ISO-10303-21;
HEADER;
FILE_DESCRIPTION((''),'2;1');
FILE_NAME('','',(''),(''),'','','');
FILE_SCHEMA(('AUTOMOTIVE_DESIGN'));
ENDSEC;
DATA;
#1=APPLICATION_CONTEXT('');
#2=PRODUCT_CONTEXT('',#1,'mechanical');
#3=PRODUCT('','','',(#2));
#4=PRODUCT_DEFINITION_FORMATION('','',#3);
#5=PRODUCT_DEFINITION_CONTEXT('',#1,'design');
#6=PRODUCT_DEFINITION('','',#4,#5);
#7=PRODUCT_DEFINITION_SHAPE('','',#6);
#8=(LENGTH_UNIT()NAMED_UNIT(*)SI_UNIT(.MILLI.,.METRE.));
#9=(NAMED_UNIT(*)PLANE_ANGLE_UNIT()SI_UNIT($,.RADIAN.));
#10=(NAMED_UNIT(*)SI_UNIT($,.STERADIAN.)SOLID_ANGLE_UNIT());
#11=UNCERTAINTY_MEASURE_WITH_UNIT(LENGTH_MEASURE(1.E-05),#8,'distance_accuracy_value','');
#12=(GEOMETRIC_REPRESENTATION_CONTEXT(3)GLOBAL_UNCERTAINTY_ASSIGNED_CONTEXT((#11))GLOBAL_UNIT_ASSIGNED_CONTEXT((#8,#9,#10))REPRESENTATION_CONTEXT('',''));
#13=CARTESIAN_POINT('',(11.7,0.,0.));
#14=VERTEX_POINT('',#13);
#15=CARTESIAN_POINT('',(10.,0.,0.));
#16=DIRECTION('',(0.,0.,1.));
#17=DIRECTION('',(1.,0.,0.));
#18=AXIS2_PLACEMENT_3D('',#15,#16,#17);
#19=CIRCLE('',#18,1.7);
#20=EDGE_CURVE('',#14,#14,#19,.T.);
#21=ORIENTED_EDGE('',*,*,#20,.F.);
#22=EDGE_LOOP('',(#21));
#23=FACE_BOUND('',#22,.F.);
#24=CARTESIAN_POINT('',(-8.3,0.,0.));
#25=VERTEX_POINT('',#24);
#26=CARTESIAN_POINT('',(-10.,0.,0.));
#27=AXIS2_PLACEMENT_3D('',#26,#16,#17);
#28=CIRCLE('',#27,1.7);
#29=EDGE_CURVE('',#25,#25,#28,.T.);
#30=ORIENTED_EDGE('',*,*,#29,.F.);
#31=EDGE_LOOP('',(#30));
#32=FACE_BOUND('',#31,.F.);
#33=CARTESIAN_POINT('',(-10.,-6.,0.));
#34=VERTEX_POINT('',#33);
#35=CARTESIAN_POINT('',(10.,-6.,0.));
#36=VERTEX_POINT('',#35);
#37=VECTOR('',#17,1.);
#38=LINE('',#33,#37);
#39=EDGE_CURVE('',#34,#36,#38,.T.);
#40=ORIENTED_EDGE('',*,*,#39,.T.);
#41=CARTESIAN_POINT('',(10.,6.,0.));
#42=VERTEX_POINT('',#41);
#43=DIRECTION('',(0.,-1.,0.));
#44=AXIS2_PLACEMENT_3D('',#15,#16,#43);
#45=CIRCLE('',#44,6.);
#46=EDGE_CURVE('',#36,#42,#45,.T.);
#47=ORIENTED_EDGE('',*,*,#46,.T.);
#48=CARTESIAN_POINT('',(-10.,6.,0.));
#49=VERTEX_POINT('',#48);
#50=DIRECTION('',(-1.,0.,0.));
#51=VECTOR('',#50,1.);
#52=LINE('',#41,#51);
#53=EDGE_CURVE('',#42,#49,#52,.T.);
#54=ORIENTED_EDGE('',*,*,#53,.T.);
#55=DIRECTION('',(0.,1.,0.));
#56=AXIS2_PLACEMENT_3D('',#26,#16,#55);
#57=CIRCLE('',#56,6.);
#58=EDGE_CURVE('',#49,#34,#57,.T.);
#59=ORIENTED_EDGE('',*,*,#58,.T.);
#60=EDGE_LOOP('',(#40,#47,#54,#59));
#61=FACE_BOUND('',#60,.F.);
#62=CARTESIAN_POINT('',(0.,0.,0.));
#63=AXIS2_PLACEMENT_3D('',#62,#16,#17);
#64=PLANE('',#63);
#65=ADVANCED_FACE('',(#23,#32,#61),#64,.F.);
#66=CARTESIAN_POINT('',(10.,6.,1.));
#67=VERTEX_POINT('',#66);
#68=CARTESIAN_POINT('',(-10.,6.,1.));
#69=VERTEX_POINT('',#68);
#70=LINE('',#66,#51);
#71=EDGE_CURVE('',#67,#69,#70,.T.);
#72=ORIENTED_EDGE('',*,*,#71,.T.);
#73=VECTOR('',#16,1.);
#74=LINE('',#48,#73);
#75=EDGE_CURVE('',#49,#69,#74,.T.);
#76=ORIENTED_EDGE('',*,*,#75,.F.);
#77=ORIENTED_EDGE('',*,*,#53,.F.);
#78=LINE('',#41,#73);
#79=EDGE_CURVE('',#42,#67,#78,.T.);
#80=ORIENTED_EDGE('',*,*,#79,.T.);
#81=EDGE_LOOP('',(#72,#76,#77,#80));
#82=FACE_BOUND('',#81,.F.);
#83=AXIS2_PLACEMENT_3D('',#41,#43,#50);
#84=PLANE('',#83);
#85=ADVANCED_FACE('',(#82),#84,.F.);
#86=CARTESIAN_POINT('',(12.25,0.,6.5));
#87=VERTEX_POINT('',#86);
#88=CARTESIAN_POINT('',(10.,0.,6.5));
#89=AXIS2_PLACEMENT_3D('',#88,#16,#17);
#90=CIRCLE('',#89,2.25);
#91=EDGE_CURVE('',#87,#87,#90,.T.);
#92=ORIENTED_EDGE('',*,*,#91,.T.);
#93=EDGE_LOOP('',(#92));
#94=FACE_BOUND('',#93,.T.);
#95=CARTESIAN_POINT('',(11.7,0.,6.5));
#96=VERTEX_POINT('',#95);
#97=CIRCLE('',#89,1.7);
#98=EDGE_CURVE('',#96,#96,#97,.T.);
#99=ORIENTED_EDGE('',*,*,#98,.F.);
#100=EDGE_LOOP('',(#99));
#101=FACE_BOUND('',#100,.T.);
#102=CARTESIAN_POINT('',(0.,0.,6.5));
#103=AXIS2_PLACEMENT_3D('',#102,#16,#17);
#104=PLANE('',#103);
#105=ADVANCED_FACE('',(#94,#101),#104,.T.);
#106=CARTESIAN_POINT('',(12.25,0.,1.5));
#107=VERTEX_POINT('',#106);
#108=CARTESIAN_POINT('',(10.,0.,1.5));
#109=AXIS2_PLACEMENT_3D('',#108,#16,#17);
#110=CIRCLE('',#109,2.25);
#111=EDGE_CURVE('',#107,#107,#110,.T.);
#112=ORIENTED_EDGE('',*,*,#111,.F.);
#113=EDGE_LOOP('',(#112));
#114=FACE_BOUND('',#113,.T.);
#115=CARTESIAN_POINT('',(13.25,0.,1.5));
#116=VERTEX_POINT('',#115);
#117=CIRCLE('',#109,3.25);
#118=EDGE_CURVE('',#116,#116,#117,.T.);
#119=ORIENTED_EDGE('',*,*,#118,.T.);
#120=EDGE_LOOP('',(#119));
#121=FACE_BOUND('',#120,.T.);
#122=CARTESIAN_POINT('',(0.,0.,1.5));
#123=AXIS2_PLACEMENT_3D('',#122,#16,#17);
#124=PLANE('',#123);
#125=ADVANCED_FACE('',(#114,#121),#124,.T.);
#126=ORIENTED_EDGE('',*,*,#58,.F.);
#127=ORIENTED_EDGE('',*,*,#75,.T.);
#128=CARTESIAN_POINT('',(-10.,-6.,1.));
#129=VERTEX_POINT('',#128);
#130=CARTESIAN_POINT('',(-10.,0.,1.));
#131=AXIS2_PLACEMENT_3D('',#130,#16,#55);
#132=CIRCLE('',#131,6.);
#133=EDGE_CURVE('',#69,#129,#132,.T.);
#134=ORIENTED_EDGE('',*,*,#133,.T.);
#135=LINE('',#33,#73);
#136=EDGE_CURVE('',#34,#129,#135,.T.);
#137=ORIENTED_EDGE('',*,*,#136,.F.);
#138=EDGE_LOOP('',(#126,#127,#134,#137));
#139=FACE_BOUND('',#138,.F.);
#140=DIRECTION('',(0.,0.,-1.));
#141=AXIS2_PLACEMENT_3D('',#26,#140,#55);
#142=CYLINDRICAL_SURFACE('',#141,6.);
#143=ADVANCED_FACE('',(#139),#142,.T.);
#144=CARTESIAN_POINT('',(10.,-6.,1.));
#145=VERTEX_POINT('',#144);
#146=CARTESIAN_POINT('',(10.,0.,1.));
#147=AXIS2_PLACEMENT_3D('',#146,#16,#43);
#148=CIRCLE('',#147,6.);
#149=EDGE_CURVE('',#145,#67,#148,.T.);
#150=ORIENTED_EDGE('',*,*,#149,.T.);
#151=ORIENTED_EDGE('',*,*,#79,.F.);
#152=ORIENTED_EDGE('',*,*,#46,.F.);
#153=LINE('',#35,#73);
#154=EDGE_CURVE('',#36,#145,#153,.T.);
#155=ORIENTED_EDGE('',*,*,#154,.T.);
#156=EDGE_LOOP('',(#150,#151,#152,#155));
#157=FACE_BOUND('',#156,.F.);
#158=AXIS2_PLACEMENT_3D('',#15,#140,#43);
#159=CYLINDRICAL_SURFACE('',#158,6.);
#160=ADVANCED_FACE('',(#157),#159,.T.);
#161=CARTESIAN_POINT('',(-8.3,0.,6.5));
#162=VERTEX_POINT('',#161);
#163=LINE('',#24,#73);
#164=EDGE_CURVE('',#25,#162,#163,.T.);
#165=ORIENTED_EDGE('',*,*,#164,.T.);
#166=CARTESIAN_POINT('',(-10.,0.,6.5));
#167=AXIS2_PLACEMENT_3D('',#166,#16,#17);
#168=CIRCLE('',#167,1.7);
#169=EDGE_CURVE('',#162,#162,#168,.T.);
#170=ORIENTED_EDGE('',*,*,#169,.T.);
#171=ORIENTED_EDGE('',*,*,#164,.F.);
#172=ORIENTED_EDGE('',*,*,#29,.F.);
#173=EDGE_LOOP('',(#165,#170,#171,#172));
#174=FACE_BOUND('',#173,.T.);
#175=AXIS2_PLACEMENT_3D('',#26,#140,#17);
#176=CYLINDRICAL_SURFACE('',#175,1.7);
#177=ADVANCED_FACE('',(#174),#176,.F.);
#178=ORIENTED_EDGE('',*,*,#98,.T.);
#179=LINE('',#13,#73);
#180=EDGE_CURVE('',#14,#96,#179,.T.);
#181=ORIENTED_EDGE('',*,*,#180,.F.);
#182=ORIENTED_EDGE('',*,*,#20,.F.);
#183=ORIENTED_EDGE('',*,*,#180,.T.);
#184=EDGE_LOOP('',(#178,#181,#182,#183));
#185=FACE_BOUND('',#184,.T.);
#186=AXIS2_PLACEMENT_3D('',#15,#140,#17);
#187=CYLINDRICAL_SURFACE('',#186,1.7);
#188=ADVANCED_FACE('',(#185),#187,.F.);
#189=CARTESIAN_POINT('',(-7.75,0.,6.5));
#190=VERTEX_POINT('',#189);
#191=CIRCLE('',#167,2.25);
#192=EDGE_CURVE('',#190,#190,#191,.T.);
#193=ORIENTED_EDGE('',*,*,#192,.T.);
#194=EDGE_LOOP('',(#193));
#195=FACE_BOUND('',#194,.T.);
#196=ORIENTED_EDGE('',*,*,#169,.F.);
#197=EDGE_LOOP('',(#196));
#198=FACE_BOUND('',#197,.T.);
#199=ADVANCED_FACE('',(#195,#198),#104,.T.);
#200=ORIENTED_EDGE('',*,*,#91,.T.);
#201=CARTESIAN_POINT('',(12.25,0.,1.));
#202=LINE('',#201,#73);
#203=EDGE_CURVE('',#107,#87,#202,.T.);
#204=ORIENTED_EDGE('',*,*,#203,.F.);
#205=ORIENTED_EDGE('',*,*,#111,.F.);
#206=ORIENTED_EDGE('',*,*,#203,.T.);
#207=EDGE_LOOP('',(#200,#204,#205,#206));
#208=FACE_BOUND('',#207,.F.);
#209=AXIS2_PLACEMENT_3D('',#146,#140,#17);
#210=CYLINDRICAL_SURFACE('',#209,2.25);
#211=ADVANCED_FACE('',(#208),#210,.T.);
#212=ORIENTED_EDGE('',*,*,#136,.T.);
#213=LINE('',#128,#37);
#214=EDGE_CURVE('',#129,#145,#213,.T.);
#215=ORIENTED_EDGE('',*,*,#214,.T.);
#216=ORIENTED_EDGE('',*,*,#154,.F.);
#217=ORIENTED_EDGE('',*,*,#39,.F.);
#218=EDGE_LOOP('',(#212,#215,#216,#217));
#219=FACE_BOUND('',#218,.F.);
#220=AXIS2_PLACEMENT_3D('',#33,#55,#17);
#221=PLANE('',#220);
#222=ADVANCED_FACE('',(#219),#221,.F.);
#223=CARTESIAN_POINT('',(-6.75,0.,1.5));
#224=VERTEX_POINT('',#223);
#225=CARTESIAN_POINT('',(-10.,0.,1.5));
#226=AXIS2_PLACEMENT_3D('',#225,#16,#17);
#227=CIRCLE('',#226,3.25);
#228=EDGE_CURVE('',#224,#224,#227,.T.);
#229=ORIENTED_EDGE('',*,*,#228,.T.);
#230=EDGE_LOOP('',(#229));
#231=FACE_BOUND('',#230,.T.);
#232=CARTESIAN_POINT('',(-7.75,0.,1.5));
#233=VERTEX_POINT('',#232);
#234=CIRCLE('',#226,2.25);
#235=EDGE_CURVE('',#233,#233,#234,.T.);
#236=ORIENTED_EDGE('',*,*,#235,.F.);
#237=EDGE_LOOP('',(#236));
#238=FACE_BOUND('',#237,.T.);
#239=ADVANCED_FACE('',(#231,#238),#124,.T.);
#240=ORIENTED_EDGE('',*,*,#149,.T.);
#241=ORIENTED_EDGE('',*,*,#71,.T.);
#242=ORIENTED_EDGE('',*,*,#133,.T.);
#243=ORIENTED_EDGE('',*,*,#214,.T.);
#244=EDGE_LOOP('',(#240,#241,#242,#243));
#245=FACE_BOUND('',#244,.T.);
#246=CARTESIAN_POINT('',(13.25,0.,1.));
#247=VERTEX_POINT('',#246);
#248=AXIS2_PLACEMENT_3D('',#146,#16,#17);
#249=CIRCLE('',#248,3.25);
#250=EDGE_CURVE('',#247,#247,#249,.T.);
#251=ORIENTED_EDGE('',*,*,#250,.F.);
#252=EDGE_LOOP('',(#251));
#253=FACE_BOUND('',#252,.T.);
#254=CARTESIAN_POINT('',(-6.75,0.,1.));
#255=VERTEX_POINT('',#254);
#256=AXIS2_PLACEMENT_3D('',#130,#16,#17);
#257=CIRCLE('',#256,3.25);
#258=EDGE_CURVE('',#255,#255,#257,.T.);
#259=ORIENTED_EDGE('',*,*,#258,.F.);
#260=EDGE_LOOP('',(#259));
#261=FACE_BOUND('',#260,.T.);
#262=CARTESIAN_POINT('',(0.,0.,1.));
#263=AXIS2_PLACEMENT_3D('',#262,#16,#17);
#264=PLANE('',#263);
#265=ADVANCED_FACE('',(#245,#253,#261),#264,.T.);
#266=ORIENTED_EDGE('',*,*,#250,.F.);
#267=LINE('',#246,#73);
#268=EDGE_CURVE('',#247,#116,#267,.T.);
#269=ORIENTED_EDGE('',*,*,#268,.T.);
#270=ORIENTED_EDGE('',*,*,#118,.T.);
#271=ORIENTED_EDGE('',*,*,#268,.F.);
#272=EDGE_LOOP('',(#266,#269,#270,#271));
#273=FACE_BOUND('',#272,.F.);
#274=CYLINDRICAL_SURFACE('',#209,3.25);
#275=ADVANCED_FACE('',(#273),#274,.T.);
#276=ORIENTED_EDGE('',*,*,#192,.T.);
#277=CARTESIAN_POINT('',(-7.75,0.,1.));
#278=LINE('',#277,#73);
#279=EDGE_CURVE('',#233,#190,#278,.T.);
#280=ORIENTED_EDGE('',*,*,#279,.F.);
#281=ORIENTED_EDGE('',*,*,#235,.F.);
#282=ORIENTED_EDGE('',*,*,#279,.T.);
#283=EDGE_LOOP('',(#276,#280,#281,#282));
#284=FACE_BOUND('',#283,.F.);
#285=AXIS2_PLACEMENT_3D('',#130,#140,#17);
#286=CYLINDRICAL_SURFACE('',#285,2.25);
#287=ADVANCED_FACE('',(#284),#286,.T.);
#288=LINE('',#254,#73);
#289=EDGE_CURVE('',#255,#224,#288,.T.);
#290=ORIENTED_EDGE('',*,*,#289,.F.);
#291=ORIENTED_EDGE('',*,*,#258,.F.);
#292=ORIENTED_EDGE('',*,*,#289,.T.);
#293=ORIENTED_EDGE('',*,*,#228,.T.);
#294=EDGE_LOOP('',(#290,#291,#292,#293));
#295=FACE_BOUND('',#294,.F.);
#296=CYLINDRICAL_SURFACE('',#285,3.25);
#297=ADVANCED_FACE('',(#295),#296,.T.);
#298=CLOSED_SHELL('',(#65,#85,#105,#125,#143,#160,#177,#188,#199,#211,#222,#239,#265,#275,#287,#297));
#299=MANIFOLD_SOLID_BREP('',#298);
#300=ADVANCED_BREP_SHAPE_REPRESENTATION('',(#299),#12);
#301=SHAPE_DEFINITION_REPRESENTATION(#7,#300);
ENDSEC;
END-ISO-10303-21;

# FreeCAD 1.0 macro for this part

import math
import FreeCAD as App
import Part
import Sketcher

doc = App.newDocument("Part")
body = doc.addObject("PartDesign::Body", "Body")

# Sketch on XY plane
sketch1 = body.newObject("Sketcher::SketchObject", "Sketch")
sketch1.AttachmentSupport = (doc.getObject("XY_Plane"), [""])
sketch1.MapMode = "FlatFace"
sketch1.addGeometry(Part.ArcOfCircle(Part.Circle(App.Vector(-10, 0, 0), App.Vector(0, 0, 1), 6), math.radians(90), math.radians(270)), False)
sketch1.addGeometry(Part.LineSegment(App.Vector(-10, -6, 0), App.Vector(10, -6, 0)), False)
sketch1.addGeometry(Part.ArcOfCircle(Part.Circle(App.Vector(10, 0, 0), App.Vector(0, 0, 1), 6), math.radians(-90), math.radians(90)), False)
sketch1.addGeometry(Part.LineSegment(App.Vector(10, 6, 0), App.Vector(-10, 6, 0)), False)
sketch1.addGeometry(Part.Circle(App.Vector(-10, 0, 0), App.Vector(0, 0, 1), 1.7), False)
sketch1.addGeometry(Part.Circle(App.Vector(10, 0, 0), App.Vector(0, 0, 1), 1.7), False)
sketch1.addConstraint(Sketcher.Constraint("Tangent", 0, 2, 1, 1))
sketch1.addConstraint(Sketcher.Constraint("Tangent", 1, 2, 2, 1))
sketch1.addConstraint(Sketcher.Constraint("Tangent", 2, 2, 3, 1))
sketch1.addConstraint(Sketcher.Constraint("Tangent", 3, 2, 0, 1))
sketch1.addConstraint(Sketcher.Constraint("Horizontal", 1))
sketch1.addConstraint(Sketcher.Constraint("Horizontal", 3))
sketch1.addConstraint(Sketcher.Constraint("Coincident", 4, 3, 0, 3))
sketch1.addConstraint(Sketcher.Constraint("Coincident", 5, 3, 2, 3))
sketch1.addConstraint(Sketcher.Constraint("Equal", 4, 5))
sketch1.addConstraint(Sketcher.Constraint("Symmetric", 0, 3, 2, 3, -1, 1))
sketch1.addConstraint(Sketcher.Constraint("Radius", 0, 6.0))
sketch1.addConstraint(Sketcher.Constraint("Diameter", 4, 3.4))
sketch1.addConstraint(Sketcher.Constraint("DistanceX", 1, 1, 1, 2, 20.0))
pad1 = body.newObject("PartDesign::Pad", "Pad")
pad1.Profile = sketch1
pad1.Length = 1

# Sketch on XY plane
sketch2 = body.newObject("Sketcher::SketchObject", "Sketch001")
sketch2.AttachmentSupport = (doc.getObject("XY_Plane"), [""])
sketch2.MapMode = "FlatFace"
sketch2.AttachmentOffset = App.Placement(App.Vector(0, 0, 1), App.Rotation())
sketch2.addGeometry(Part.Circle(App.Vector(10, 0, 0), App.Vector(0, 0, 1), 2.2), False)
sketch2.addGeometry(Part.Circle(App.Vector(10, 0, 0), App.Vector(0, 0, 1), 1.7), False)
sketch2.addGeometry(Part.Circle(App.Vector(-10, 0, 0), App.Vector(0, 0, 1), 2.2), False)
sketch2.addGeometry(Part.Circle(App.Vector(-10, 0, 0), App.Vector(0, 0, 1), 1.7), False)
sketch2.addConstraint(Sketcher.Constraint("Coincident", 1, 3, 0, 3))
sketch2.addConstraint(Sketcher.Constraint("Coincident", 3, 3, 2, 3))
sketch2.addConstraint(Sketcher.Constraint("Equal", 0, 2))
sketch2.addConstraint(Sketcher.Constraint("Equal", 1, 3))
sketch2.addConstraint(Sketcher.Constraint("Symmetric", 0, 3, 2, 3, -1, 1))
sketch2.addConstraint(Sketcher.Constraint("PointOnObject", 0, 3, -1))
sketch2.addConstraint(Sketcher.Constraint("Diameter", 0, 4.5))
sketch2.addConstraint(Sketcher.Constraint("Diameter", 1, 3.4))
sketch2.addConstraint(Sketcher.Constraint("DistanceX", -1, 1, 0, 3, 10.0))
pad2 = body.newObject("PartDesign::Pad", "Pad001")
pad2.Profile = sketch2
pad2.Length = 5.5

# Sketch on XY plane
sketch3 = body.newObject("Sketcher::SketchObject", "Sketch002")
sketch3.AttachmentSupport = (doc.getObject("XY_Plane"), [""])
sketch3.MapMode = "FlatFace"
sketch3.AttachmentOffset = App.Placement(App.Vector(0, 0, 1), App.Rotation())
sketch3.addGeometry(Part.Circle(App.Vector(10, 0, 0), App.Vector(0, 0, 1), 3.2), False)
sketch3.addGeometry(Part.Circle(App.Vector(10, 0, 0), App.Vector(0, 0, 1), 2.2), False)
sketch3.addGeometry(Part.Circle(App.Vector(-10, 0, 0), App.Vector(0, 0, 1), 3.2), False)
sketch3.addGeometry(Part.Circle(App.Vector(-10, 0, 0), App.Vector(0, 0, 1), 2.2), False)
sketch3.addConstraint(Sketcher.Constraint("Coincident", 1, 3, 0, 3))
sketch3.addConstraint(Sketcher.Constraint("Coincident", 3, 3, 2, 3))
sketch3.addConstraint(Sketcher.Constraint("Equal", 0, 2))
sketch3.addConstraint(Sketcher.Constraint("Equal", 1, 3))
sketch3.addConstraint(Sketcher.Constraint("Symmetric", 0, 3, 2, 3, -1, 1))
sketch3.addConstraint(Sketcher.Constraint("PointOnObject", 0, 3, -1))
sketch3.addConstraint(Sketcher.Constraint("Diameter", 0, 6.5))
sketch3.addConstraint(Sketcher.Constraint("Diameter", 1, 4.5))
sketch3.addConstraint(Sketcher.Constraint("DistanceX", -1, 1, 0, 3, 10.0))
pad3 = body.newObject("PartDesign::Pad", "Pad002")
pad3.Profile = sketch3
pad3.Length = 0.5

doc.recompute()
